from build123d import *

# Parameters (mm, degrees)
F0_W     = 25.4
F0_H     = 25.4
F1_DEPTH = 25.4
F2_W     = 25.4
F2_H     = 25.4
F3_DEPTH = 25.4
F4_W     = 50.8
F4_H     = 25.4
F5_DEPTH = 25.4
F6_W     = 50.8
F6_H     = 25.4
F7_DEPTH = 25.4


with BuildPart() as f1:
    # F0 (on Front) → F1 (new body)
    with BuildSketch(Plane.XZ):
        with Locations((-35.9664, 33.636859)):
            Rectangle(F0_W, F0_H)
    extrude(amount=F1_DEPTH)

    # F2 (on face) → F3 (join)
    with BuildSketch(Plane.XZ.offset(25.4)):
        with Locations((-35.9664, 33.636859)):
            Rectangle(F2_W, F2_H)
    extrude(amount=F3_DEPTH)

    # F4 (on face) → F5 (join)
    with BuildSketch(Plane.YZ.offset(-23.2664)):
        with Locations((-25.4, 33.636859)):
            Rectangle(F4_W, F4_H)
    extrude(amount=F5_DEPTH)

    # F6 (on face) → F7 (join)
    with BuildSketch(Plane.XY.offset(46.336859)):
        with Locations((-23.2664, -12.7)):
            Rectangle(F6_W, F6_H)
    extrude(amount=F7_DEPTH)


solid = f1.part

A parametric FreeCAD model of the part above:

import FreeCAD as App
import Part
import Sketcher
from FreeCAD import Vector
Q = App.Units.Quantity


def add_polygon(sketch, points):
    """Adds a closed chain of lines whose ends are joined by coincident constraints."""
    first, n = sketch.GeometryCount, len(points)
    for a, b in zip(points, points[1:] + points[:1]):
        sketch.addGeometry(Part.LineSegment(App.Vector(*a, 0), App.Vector(*b, 0)), False)
    for i in range(n):
        sketch.addConstraint(Sketcher.Constraint("Coincident", first + i, 2, first + (i + 1) % n, 1))

doc = App.newDocument("Part")
body = doc.addObject("PartDesign::Body", "Body")

sketch1 = body.newObject("Sketcher::SketchObject", "Sketch")
sketch1.AttachmentSupport = (doc.getObject("XZ_Plane"), [""])
sketch1.MapMode = "FlatFace"
add_polygon(sketch1, [(-49, 46), (-49, 21), (-23, 21), (-23, 46)])
sketch1.addConstraint([
    Sketcher.Constraint("Vertical", 0),
    Sketcher.Constraint("Horizontal", 1),
    Sketcher.Constraint("Vertical", 2),
    Sketcher.Constraint("Horizontal", 3),
    Sketcher.Constraint("Equal", 3, 0),
    Sketcher.Constraint("DistanceX", 1, 1, 1, 2, Q("1 in")),
    Sketcher.Constraint("DistanceX", 0, 2, -1, 1, Q("1.916 in")),
    Sketcher.Constraint("DistanceY", -1, 1, 0, 2, Q("20.936859 mm")),
])
pad1 = body.newObject("PartDesign::Pad", "Pad")
pad1.Profile = sketch1
pad1.Length = Q("1 in")

sketch2 = body.newObject("Sketcher::SketchObject", "Sketch001")
sketch2.AttachmentSupport = (doc.getObject("XZ_Plane"), [""])
sketch2.MapMode = "FlatFace"
sketch2.AttachmentOffset = App.Placement(Vector(0, 0, 1 * 25.4), App.Rotation())
add_polygon(sketch2, [(-49, 46), (-49, 21), (-23, 21), (-23, 46)])
sketch2.addConstraint([
    Sketcher.Constraint("Vertical", 0),
    Sketcher.Constraint("Horizontal", 1),
    Sketcher.Constraint("Vertical", 2),
    Sketcher.Constraint("Horizontal", 3),
    Sketcher.Constraint("Equal", 3, 0),
    Sketcher.Constraint("DistanceX", 1, 1, 1, 2, Q("1 in")),
    Sketcher.Constraint("DistanceX", 0, 2, -1, 1, Q("1.916 in")),
    Sketcher.Constraint("DistanceY", -1, 1, 0, 2, Q("20.936859 mm")),
])
pad2 = body.newObject("PartDesign::Pad", "Pad001")
pad2.Profile = sketch2
pad2.Length = Q("1 in")

sketch3 = body.newObject("Sketcher::SketchObject", "Sketch002")
sketch3.AttachmentSupport = (doc.getObject("YZ_Plane"), [""])
sketch3.MapMode = "FlatFace"
sketch3.AttachmentOffset = App.Placement(Vector(0, 0, -0.916 * 25.4), App.Rotation())
add_polygon(sketch3, [(-51, 46), (-51, 21), (0, 21), (0, 46)])
sketch3.addConstraint([
    Sketcher.Constraint("Vertical", 0),
    Sketcher.Constraint("Horizontal", 1),
    Sketcher.Constraint("Vertical", 2),
    Sketcher.Constraint("Horizontal", 3),
    Sketcher.Constraint("PointOnObject", 1, 2, -2),
    Sketcher.Constraint("DistanceX", 1, 1, 1, 2, Q("2 in")),
    Sketcher.Constraint("DistanceY", 0, 2, 0, 1, Q("1 in")),
    Sketcher.Constraint("DistanceY", -1, 1, 0, 2, Q("20.936859 mm")),
])
pad3 = body.newObject("PartDesign::Pad", "Pad002")
pad3.Profile = sketch3
pad3.Length = Q("1 in")

sketch4 = body.newObject("Sketcher::SketchObject", "Sketch003")
sketch4.AttachmentSupport = (doc.getObject("XY_Plane"), [""])
sketch4.MapMode = "FlatFace"
sketch4.AttachmentOffset = App.Placement(Vector(0, 0, 46.336859), App.Rotation())
add_polygon(sketch4, [(-49, 0), (-49, -25), (2, -25), (2, 0)])
sketch4.addConstraint([
    Sketcher.Constraint("Vertical", 0),
    Sketcher.Constraint("Horizontal", 1),
    Sketcher.Constraint("Vertical", 2),
    Sketcher.Constraint("Horizontal", 3),
    Sketcher.Constraint("PointOnObject", 2, 2, -1),
    Sketcher.Constraint("DistanceX", 1, 1, 1, 2, Q("2 in")),
    Sketcher.Constraint("DistanceY", 0, 2, 0, 1, Q("1 in")),
    Sketcher.Constraint("DistanceX", 0, 2, -1, 1, Q("1.916 in")),
])
pad4 = body.newObject("PartDesign::Pad", "Pad003")
pad4.Profile = sketch4
pad4.Length = Q("1 in")

doc.recompute()
